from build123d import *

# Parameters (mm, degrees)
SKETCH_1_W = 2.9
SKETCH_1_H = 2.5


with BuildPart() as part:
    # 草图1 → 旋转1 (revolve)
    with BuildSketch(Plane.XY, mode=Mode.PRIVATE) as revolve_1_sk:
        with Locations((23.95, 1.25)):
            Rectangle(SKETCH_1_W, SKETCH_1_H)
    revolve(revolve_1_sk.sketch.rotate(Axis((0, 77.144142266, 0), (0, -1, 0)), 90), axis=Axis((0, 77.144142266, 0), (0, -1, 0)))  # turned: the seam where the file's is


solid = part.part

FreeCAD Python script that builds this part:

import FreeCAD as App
import Part
import Sketcher

doc = App.newDocument("Part")
body = doc.addObject("PartDesign::Body", "Body")

# Sketch on XY plane
sketch1 = body.newObject("Sketcher::SketchObject", "Sketch")
sketch1.AttachmentSupport = (doc.getObject("XY_Plane"), [""])
sketch1.MapMode = "FlatFace"
sketch1.addGeometry([
    Part.LineSegment(App.Vector(22.5, 2.5, 0), App.Vector(22.5, 0, 0)),
    Part.LineSegment(App.Vector(22.5, 0, 0), App.Vector(25.4, 0, 0)),
    Part.LineSegment(App.Vector(25.4, 0, 0), App.Vector(25.4, 2.5, 0)),
    Part.LineSegment(App.Vector(25.4, 2.5, 0), App.Vector(22.5, 2.5, 0)),
], False)
sketch1.addConstraint([
    Sketcher.Constraint("Coincident", 0, 2, 1, 1),
    Sketcher.Constraint("Coincident", 1, 2, 2, 1),
    Sketcher.Constraint("Coincident", 2, 2, 3, 1),
    Sketcher.Constraint("Coincident", 3, 2, 0, 1),
    Sketcher.Constraint("Vertical", 0),
    Sketcher.Constraint("Horizontal", 1),
    Sketcher.Constraint("Vertical", 2),
    Sketcher.Constraint("Horizontal", 3),
    Sketcher.Constraint("PointOnObject", 0, 2, -1),
    Sketcher.Constraint("DistanceX", 1, 1, 1, 2, 2.9),
    Sketcher.Constraint("DistanceY", 0, 2, 0, 1, 2.5),
    Sketcher.Constraint("DistanceX", -1, 1, 0, 2, 22.5),
])
revolution = body.newObject("PartDesign::Revolution", "Revolution")
revolution.Profile = sketch1
revolution.ReferenceAxis = (sketch1, ["V_Axis"])
revolution.Angle = 360

doc.recompute()
